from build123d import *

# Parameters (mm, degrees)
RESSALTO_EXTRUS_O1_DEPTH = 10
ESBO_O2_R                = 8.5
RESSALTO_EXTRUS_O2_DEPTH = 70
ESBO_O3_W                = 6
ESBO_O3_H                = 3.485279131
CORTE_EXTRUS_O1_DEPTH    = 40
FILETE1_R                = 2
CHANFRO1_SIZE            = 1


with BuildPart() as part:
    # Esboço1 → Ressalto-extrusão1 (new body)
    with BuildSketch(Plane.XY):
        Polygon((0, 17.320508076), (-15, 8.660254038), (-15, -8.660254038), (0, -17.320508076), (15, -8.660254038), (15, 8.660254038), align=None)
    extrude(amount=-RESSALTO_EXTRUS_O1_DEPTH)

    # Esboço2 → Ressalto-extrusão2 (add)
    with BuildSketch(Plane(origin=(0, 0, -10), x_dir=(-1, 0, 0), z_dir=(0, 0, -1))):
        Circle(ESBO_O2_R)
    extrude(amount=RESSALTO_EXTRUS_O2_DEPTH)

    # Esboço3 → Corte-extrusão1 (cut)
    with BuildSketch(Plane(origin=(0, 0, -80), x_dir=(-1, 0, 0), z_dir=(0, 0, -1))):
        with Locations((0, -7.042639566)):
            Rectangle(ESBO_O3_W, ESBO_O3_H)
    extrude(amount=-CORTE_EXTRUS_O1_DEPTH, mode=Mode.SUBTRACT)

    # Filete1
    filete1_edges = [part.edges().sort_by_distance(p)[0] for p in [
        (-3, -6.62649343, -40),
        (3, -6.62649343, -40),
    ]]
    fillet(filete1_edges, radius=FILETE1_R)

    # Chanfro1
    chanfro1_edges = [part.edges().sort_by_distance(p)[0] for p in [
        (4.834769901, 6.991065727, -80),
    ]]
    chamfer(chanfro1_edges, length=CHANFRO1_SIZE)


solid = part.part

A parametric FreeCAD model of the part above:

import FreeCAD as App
import Part
import Sketcher
Q = App.Units.Quantity


def edges_at(feature, points):
    """Names of the edges that pass closest to the given points."""
    edges = feature.Shape.Edges
    near = lambda p: min(range(len(edges)), key=lambda i: edges[i].distToShape(Part.Vertex(*p))[0])
    return sorted({f"Edge{near(p) + 1}" for p in points})

doc = App.newDocument("Part")
body = doc.addObject("PartDesign::Body", "Body")

sketch1 = body.newObject("Sketcher::SketchObject", "Sketch")
sketch1.AttachmentSupport = (doc.getObject("XY_Plane"), [""])
sketch1.MapMode = "FlatFace"
sketch1.addGeometry([
    Part.LineSegment(App.Vector(0, 17.320508, 0), App.Vector(-15, 8.660254, 0)),
    Part.LineSegment(App.Vector(-15, 8.660254, 0), App.Vector(-15, -8.660254, 0)),
    Part.LineSegment(App.Vector(-15, -8.660254, 0), App.Vector(0, -17.320508, 0)),
    Part.LineSegment(App.Vector(0, -17.320508, 0), App.Vector(15, -8.660254, 0)),
    Part.LineSegment(App.Vector(15, -8.660254, 0), App.Vector(15, 8.660254, 0)),
    Part.LineSegment(App.Vector(15, 8.660254, 0), App.Vector(0, 17.320508, 0)),
], False)
sketch1.addConstraint([
    Sketcher.Constraint("Coincident", 0, 2, 1, 1),
    Sketcher.Constraint("Coincident", 1, 2, 2, 1),
    Sketcher.Constraint("Coincident", 2, 2, 3, 1),
    Sketcher.Constraint("Coincident", 3, 2, 4, 1),
    Sketcher.Constraint("Coincident", 4, 2, 5, 1),
    Sketcher.Constraint("Coincident", 5, 2, 0, 1),
    Sketcher.Constraint("Vertical", 1),
    Sketcher.Constraint("Vertical", 4),
    Sketcher.Constraint("Symmetric", 0, 2, 3, 2, -1, 1),
    Sketcher.Constraint("Symmetric", 2, 2, 5, 2, -1, 1),
    Sketcher.Constraint("PointOnObject", 2, 2, -2),
    Sketcher.Constraint("Parallel", 2, 5),
    Sketcher.Constraint("Horizontal", 1, 2, 3, 2),
    Sketcher.Constraint("Angle", 0, Q("-150 deg")),
    Sketcher.Constraint("DistanceX", 0, 2, -1, 1, Q("15 mm")),
    Sketcher.Constraint("DistanceY", 1, 2, 1, 1, Q("17.320508 mm")),
])
pad1 = body.newObject("PartDesign::Pad", "Pad")
pad1.Profile = sketch1
pad1.Length = 10
pad1.Reversed = True

sketch2 = body.newObject("Sketcher::SketchObject", "Sketch001")
sketch2.AttachmentSupport = (doc.getObject("XY_Plane"), [""])
sketch2.MapMode = "FlatFace"
sketch2.AttachmentOffset = App.Placement(App.Vector(0, 0, -10), App.Rotation())
sketch2.addGeometry(Part.Circle(App.Vector(0, 0, 0), App.Vector(0, 0, 1), 8.5), False)
sketch2.addConstraint([
    Sketcher.Constraint("Coincident", 0, 3, -1, 1),
    Sketcher.Constraint("Diameter", 0, Q("17 mm")),
])
pad2 = body.newObject("PartDesign::Pad", "Pad001")
pad2.Profile = sketch2
pad2.Length = 70
pad2.Reversed = True

sketch3 = body.newObject("Sketcher::SketchObject", "Sketch002")
sketch3.AttachmentSupport = (doc.getObject("XY_Plane"), [""])
sketch3.MapMode = "FlatFace"
sketch3.AttachmentOffset = App.Placement(App.Vector(0, 0, -80), App.Rotation())
sketch3.addGeometry([
    Part.LineSegment(App.Vector(3, -5.3, 0), App.Vector(3, -8.785279, 0)),
    Part.LineSegment(App.Vector(3, -8.785279, 0), App.Vector(-3, -8.785279, 0)),
    Part.LineSegment(App.Vector(-3, -8.785279, 0), App.Vector(-3, -5.3, 0)),
    Part.LineSegment(App.Vector(-3, -5.3, 0), App.Vector(3, -5.3, 0)),
], False)
sketch3.addConstraint([
    Sketcher.Constraint("Coincident", 0, 2, 1, 1),
    Sketcher.Constraint("Coincident", 1, 2, 2, 1),
    Sketcher.Constraint("Coincident", 2, 2, 3, 1),
    Sketcher.Constraint("Coincident", 3, 2, 0, 1),
    Sketcher.Constraint("Vertical", 0),
    Sketcher.Constraint("Horizontal", 1),
    Sketcher.Constraint("Vertical", 2),
    Sketcher.Constraint("Horizontal", 3),
    Sketcher.Constraint("DistanceX", 1, 2, 1, 1, Q("6 mm")),
    Sketcher.Constraint("DistanceX", -1, 1, 0, 2, Q("3 mm")),
    Sketcher.Constraint("DistanceY", 2, 2, -1, 1, Q("5.3 mm")),
    Sketcher.Constraint("DistanceY", 0, 2, 0, 1, Q("3.485279 mm")),
])
pocket1 = body.newObject("PartDesign::Pocket", "Pocket")
pocket1.Profile = sketch3
pocket1.Length = 40
pocket1.Reversed = True
doc.recompute()

fillet = body.newObject("PartDesign::Fillet", "Fillet")
fillet.Base = (pocket1, edges_at(pocket1, [(-3, -6.626, -40), (3, -6.626, -40)]))
fillet.Radius = 2
doc.recompute()

chamfer = body.newObject("PartDesign::Chamfer", "Chamfer")
chamfer.Base = (fillet, edges_at(fillet, [(4.835, 6.991, -80)]))
chamfer.Size = 1

doc.recompute()
